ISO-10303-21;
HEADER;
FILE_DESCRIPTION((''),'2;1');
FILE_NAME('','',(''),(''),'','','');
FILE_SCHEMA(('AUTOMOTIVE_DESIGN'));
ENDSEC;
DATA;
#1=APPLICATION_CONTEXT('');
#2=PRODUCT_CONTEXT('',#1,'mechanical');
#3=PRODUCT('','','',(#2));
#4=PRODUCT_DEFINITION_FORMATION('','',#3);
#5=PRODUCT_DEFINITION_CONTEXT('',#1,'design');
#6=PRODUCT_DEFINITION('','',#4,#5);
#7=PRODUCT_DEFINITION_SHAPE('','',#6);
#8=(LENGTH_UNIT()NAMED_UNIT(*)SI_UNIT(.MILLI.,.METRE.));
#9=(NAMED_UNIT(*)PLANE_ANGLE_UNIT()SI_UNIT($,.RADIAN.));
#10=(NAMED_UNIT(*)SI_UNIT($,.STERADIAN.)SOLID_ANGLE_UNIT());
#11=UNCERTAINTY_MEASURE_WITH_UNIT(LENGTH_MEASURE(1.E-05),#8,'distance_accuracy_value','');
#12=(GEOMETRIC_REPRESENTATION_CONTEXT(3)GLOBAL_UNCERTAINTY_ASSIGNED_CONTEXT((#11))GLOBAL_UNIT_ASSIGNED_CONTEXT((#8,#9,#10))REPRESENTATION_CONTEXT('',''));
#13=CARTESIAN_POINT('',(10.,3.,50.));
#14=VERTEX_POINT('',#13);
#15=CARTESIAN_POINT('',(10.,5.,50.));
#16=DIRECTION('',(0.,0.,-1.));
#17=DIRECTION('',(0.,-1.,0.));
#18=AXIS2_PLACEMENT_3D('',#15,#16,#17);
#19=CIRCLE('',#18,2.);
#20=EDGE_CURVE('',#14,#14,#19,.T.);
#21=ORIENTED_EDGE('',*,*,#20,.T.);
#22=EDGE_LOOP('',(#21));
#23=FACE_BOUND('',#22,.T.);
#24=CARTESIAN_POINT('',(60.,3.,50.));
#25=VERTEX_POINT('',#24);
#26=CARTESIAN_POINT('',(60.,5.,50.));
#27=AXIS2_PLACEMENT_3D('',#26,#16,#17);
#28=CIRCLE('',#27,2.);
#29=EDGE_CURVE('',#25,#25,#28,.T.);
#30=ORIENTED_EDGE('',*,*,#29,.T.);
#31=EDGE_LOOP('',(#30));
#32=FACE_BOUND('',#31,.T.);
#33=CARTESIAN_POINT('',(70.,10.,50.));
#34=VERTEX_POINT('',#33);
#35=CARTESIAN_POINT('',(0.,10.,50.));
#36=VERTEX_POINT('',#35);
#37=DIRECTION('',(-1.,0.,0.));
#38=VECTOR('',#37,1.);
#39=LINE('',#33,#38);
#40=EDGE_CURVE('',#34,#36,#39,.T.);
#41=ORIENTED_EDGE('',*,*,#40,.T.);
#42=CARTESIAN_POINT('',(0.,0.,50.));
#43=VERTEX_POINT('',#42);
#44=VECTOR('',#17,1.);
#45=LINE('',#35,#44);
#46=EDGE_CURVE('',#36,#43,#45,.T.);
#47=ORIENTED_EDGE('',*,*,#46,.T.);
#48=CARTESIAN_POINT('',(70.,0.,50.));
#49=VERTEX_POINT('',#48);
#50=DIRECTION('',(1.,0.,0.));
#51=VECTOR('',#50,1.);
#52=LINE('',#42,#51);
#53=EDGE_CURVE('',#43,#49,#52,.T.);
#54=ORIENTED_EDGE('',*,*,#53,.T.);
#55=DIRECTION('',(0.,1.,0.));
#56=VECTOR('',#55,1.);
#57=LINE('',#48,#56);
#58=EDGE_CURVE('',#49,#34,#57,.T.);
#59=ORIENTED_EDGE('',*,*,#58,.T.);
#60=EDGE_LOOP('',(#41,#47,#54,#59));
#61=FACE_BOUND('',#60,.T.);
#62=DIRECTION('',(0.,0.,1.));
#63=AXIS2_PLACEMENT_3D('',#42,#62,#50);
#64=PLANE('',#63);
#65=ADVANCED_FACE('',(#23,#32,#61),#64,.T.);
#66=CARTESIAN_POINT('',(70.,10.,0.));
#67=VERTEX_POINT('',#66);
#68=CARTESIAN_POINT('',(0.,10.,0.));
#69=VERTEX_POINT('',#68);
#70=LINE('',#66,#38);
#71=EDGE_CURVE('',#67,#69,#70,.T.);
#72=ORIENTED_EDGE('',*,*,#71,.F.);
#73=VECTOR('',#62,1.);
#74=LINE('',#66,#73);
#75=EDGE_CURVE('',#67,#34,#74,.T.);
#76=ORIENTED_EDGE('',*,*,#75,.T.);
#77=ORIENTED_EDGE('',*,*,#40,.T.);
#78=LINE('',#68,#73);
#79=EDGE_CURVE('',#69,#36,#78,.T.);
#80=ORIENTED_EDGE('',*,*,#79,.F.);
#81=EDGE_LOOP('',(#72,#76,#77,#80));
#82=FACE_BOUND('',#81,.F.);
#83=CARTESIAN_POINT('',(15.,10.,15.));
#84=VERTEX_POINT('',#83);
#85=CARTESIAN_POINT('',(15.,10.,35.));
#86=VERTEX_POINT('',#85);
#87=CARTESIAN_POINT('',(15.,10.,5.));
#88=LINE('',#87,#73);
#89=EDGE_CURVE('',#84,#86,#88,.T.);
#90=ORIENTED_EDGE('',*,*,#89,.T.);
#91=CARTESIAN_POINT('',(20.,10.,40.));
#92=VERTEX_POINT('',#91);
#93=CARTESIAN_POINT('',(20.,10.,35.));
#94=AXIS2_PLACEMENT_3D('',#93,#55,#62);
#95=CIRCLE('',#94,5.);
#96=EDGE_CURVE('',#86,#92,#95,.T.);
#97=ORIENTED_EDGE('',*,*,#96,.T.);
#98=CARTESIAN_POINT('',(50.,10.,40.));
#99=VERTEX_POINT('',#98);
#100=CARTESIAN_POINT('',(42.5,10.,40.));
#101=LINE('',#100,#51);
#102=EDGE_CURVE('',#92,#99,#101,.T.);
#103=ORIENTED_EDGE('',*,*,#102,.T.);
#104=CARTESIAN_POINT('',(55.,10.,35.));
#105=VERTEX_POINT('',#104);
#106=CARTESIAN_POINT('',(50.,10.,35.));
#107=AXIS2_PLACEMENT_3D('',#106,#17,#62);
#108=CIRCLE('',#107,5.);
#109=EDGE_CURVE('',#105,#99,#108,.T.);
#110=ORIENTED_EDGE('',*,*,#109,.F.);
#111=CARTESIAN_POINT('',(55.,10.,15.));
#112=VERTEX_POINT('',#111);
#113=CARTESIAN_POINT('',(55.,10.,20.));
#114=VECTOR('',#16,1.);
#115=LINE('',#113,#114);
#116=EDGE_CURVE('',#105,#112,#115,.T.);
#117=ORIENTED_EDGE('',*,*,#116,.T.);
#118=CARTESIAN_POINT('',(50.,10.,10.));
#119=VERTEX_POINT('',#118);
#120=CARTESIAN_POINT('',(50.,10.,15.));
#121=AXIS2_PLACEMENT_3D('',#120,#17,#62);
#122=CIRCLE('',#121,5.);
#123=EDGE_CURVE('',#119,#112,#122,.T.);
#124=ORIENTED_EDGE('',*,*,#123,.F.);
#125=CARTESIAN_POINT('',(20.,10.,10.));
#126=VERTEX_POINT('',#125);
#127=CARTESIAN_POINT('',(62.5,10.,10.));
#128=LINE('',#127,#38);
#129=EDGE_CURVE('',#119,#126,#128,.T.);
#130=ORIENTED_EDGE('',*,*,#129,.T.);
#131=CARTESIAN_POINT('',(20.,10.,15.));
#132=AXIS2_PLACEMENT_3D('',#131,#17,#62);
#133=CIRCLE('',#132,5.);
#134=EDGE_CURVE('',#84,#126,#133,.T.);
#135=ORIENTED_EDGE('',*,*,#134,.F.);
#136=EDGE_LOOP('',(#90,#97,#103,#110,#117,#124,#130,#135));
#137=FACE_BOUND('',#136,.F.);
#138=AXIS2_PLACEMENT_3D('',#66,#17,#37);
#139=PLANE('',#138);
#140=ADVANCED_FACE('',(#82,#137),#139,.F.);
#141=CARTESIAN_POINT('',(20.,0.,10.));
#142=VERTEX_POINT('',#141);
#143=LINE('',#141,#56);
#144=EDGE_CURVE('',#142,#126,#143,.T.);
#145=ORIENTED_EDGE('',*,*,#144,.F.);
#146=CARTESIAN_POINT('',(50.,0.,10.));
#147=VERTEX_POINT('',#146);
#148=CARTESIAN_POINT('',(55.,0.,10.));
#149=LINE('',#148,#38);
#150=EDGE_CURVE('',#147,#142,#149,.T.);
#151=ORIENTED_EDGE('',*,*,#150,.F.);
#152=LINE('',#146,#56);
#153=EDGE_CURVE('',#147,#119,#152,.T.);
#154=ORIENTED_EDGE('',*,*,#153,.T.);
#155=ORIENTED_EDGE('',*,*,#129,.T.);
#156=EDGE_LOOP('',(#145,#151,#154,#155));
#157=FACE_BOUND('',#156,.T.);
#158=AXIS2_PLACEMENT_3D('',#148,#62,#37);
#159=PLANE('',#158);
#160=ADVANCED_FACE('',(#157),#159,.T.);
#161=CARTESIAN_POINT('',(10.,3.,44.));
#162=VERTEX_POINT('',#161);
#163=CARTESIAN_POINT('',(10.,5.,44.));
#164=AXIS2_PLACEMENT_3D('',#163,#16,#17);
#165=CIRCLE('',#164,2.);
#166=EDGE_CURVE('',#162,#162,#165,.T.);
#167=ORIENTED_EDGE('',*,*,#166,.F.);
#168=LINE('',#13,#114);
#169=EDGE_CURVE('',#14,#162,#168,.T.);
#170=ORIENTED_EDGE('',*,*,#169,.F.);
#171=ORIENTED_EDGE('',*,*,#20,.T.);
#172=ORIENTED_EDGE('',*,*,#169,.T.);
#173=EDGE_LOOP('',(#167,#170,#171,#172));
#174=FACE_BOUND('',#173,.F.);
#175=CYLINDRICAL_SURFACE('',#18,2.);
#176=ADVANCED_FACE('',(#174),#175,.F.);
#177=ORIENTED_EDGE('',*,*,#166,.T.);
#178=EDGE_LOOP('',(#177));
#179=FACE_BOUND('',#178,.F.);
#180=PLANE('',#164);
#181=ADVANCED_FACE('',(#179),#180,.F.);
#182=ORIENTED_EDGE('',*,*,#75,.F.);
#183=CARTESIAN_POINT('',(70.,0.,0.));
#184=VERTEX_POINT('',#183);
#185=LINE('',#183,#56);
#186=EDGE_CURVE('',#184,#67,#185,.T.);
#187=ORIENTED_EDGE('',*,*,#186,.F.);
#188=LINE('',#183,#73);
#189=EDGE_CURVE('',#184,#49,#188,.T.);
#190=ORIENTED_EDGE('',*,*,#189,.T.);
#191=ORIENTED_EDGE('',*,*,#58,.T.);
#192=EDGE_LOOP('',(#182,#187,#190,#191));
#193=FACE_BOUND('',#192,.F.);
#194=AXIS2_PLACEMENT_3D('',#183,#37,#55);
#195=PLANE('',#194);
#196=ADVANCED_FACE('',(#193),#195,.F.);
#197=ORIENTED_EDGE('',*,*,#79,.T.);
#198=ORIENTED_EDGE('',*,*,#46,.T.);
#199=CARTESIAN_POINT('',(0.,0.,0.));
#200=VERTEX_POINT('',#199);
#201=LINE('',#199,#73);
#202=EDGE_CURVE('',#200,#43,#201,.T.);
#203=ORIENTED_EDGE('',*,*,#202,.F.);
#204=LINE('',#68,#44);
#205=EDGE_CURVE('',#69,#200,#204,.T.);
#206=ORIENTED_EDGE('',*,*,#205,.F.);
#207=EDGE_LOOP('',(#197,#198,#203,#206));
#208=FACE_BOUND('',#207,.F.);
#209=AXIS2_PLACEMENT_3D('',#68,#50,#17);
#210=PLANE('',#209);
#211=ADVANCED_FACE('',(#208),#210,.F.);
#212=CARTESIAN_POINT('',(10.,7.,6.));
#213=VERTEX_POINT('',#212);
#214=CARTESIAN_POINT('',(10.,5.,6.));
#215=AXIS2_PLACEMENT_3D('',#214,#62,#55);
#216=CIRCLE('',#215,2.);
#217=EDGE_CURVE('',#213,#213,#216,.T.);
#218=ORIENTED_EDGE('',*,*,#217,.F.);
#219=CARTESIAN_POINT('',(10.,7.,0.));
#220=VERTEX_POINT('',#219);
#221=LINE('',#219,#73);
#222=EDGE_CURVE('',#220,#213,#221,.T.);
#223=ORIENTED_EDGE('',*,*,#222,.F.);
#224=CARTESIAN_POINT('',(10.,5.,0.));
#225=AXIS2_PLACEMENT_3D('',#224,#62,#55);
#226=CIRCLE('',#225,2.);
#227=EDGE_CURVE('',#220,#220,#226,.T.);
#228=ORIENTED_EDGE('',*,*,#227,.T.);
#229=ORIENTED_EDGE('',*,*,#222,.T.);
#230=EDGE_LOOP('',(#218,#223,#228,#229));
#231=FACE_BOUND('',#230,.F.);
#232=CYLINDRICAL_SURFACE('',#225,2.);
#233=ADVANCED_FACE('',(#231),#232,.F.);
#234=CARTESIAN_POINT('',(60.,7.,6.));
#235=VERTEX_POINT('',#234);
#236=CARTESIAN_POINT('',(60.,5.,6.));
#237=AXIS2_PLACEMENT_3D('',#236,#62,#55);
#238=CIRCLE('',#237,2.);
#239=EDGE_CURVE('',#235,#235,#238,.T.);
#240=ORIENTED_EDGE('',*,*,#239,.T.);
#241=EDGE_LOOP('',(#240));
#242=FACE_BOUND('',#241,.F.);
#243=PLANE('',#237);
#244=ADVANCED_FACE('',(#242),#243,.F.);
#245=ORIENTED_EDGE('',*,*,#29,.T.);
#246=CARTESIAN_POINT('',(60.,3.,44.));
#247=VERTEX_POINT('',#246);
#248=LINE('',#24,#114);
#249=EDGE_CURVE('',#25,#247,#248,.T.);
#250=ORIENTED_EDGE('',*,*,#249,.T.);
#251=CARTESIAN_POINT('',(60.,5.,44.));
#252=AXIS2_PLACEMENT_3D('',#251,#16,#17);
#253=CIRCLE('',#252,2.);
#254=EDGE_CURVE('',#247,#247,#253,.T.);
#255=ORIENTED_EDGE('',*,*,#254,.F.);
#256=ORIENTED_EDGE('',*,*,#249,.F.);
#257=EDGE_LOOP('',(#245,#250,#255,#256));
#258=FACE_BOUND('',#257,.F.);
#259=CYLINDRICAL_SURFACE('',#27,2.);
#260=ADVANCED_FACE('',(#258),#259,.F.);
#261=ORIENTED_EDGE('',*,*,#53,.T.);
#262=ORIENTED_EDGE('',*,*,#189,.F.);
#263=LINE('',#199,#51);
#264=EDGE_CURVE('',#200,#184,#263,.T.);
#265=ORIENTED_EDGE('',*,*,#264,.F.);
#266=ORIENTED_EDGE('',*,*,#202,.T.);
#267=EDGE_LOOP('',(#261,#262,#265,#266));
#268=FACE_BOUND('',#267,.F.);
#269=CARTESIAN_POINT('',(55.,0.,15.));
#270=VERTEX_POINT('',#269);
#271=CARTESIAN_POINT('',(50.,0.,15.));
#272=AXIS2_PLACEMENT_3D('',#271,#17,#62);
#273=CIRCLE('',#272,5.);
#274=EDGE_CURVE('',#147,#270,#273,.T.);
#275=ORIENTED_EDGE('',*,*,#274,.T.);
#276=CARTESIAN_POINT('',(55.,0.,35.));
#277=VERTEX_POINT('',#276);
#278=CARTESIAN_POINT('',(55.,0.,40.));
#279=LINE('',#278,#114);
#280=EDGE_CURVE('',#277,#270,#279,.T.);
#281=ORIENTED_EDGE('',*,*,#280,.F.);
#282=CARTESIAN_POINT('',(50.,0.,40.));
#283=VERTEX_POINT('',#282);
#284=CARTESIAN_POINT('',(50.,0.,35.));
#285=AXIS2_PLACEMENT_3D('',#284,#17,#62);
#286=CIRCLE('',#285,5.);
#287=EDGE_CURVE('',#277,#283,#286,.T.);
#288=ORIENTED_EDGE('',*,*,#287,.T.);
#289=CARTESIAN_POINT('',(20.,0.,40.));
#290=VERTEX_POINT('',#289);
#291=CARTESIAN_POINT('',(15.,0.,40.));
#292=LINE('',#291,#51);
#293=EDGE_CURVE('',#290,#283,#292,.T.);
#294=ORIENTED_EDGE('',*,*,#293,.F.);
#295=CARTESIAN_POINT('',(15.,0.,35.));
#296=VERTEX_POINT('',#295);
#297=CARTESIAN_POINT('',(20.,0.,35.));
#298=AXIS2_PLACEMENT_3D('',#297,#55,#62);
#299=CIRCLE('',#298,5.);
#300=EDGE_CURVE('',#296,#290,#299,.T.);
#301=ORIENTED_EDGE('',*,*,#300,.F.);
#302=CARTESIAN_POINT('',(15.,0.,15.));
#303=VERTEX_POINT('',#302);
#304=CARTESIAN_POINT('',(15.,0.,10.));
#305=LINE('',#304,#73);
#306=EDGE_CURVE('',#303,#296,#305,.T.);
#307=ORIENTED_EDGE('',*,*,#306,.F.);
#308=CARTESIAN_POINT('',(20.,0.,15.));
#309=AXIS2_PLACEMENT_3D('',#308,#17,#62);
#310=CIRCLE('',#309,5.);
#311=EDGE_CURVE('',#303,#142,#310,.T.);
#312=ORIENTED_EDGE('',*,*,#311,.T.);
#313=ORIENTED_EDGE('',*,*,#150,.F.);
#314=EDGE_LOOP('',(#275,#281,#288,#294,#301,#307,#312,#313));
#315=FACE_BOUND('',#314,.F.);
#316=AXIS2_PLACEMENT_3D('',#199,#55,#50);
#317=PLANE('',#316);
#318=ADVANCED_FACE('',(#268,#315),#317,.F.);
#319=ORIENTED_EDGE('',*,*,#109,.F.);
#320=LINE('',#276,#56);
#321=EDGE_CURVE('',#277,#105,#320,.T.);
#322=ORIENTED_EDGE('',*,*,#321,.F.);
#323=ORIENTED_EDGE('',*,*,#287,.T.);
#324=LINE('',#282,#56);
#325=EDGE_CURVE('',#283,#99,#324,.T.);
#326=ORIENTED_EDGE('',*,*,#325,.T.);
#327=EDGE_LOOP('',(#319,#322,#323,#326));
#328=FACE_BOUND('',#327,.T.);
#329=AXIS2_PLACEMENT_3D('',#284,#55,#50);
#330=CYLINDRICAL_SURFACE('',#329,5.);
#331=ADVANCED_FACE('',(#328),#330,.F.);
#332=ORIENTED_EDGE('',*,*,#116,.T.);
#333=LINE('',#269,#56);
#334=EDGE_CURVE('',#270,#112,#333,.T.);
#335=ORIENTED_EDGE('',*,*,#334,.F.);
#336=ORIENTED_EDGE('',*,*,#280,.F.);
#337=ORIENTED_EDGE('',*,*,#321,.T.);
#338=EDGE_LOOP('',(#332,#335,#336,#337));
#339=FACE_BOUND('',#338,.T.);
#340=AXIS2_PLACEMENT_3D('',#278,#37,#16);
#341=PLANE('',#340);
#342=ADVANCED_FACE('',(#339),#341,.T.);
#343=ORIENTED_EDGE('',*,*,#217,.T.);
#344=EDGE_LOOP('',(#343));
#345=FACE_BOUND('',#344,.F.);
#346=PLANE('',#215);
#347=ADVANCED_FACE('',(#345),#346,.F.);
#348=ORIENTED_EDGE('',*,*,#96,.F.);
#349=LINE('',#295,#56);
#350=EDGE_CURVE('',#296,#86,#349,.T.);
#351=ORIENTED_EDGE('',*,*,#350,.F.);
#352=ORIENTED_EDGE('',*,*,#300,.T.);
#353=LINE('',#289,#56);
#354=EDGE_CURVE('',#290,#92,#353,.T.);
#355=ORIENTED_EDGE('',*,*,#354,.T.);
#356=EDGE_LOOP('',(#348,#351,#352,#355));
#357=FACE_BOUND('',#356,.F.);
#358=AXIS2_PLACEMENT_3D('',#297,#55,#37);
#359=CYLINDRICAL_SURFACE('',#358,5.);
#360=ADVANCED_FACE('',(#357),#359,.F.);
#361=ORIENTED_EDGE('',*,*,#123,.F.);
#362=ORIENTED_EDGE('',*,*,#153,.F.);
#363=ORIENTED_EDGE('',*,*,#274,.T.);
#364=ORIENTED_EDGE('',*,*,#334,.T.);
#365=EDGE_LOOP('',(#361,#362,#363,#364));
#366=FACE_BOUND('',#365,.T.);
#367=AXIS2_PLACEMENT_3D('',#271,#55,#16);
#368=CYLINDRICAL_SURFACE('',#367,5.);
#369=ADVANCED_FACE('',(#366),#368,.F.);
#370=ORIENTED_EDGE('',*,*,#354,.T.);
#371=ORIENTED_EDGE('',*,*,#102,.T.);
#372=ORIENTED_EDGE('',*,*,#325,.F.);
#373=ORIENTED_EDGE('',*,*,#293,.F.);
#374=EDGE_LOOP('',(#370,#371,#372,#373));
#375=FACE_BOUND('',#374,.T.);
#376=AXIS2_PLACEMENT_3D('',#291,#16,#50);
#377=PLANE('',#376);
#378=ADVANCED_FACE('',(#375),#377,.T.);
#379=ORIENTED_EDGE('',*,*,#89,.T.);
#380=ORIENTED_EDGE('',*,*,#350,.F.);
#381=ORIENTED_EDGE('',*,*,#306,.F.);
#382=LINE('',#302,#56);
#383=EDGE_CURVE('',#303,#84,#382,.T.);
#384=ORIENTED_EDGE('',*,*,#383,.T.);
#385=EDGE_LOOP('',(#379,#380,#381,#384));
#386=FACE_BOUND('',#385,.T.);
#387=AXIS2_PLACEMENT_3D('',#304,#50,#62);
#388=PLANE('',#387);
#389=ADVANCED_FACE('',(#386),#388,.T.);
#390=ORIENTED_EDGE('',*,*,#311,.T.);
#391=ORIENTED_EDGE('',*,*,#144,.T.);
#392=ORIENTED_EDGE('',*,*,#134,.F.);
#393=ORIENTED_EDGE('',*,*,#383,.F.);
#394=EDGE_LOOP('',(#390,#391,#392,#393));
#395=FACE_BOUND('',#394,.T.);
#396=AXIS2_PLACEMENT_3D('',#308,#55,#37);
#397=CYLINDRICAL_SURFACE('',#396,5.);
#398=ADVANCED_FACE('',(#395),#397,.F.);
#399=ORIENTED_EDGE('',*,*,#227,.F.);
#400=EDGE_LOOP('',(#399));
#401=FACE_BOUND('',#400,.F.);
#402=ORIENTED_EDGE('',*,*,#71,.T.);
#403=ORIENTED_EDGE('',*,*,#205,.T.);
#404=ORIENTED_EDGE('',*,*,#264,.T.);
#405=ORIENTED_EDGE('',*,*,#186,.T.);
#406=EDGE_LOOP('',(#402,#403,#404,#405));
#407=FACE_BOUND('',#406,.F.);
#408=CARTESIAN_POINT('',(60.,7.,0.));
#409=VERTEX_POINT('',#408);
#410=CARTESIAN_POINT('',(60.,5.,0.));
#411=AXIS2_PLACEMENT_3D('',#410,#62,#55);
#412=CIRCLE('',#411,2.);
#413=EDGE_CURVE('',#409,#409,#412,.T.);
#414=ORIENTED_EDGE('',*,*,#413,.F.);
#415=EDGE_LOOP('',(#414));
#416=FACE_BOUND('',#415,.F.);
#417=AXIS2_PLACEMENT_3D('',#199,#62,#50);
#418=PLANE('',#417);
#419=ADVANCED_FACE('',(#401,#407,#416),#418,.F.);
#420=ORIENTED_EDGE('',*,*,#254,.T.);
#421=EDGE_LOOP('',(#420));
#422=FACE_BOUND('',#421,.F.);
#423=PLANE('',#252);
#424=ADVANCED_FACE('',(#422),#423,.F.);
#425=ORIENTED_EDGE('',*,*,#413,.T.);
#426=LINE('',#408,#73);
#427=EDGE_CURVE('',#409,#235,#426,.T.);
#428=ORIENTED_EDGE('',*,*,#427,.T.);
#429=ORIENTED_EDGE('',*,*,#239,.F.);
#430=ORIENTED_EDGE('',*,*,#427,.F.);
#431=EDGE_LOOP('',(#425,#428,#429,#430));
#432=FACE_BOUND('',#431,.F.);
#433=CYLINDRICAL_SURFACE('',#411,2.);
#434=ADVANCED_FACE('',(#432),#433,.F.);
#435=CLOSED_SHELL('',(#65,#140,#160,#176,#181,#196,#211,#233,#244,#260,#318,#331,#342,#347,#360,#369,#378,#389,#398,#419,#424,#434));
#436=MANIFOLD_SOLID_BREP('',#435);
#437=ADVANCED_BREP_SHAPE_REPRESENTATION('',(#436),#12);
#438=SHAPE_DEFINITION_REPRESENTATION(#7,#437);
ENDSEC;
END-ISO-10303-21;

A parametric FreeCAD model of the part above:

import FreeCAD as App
import Part
import Sketcher
Q = App.Units.Quantity


def edges_at(feature, points):
    """Names of the edges that pass closest to the given points."""
    edges = feature.Shape.Edges
    near = lambda p: min(range(len(edges)), key=lambda i: edges[i].distToShape(Part.Vertex(*p))[0])
    return sorted({f"Edge{near(p) + 1}" for p in points})


def add_polygon(sketch, points):
    """Adds a closed chain of lines whose ends are joined by coincident constraints."""
    first, n = sketch.GeometryCount, len(points)
    for a, b in zip(points, points[1:] + points[:1]):
        sketch.addGeometry(Part.LineSegment(App.Vector(*a, 0), App.Vector(*b, 0)), False)
    for i in range(n):
        sketch.addConstraint(Sketcher.Constraint("Coincident", first + i, 2, first + (i + 1) % n, 1))

doc = App.newDocument("Part")
body = doc.addObject("PartDesign::Body", "Body")

# Sketch on XY plane
sketch1 = doc.addObject("Sketcher::SketchObject", "Sketch")
body.addObject(sketch1)
sketch1.AttachmentSupport = (doc.XY_Plane, [""])
sketch1.MapMode = "FlatFace"
add_polygon(sketch1, [(0, 10), (0, 0), (70, 0), (70, 10)])  # lines 0-3
sketch1.addConstraint([
    Sketcher.Constraint("Vertical", 0),
    Sketcher.Constraint("Horizontal", 1),
    Sketcher.Constraint("Vertical", 2),
    Sketcher.Constraint("Horizontal", 3),
    Sketcher.Constraint("Coincident", 0, 2, -1, 1),
    Sketcher.Constraint("DistanceX", 1, 1, 1, 2, Q("70 mm")),
    Sketcher.Constraint("DistanceY", 0, 2, 0, 1, Q("10 mm")),
])
pad1 = doc.addObject("PartDesign::Pad", "Pad")
body.addObject(pad1)
pad1.Profile = sketch1
pad1.Length = 50

# Sketch on XY plane
sketch2 = doc.addObject("Sketcher::SketchObject", "Sketch001")
body.addObject(sketch2)
sketch2.AttachmentSupport = (doc.XY_Plane, [""])
sketch2.MapMode = "FlatFace"
sketch2.AttachmentOffset = App.Placement(App.Vector(0, 0, 50), App.Rotation())
sketch2.addGeometry([
    Part.Circle(App.Vector(10, 5, 0), App.Vector(0, 0, 1), 2),
    Part.Circle(App.Vector(60, 5, 0), App.Vector(0, 0, 1), 2),
], False)
sketch2.addConstraint([
    Sketcher.Constraint("Equal", 0, 1),
    Sketcher.Constraint("Horizontal", 0, 3, 1, 3),
    Sketcher.Constraint("Diameter", 0, Q("4 mm")),
    Sketcher.Constraint("DistanceX", -1, 1, 0, 3, Q("10 mm")),
    Sketcher.Constraint("DistanceY", -1, 1, 0, 3, Q("5 mm")),
    Sketcher.Constraint("DistanceX", -1, 1, 1, 3, Q("60 mm")),
])
doc.recompute()
hole = doc.addObject("PartDesign::Hole", "Hole")
body.addObject(hole)
hole.Profile = sketch2
hole.ThreadType = "None"
hole.Diameter = 4
hole.DepthType = "Dimension"
hole.Depth = 6
hole.DrillPoint = "Flat"

# Sketch on XY plane
sketch3 = doc.addObject("Sketcher::SketchObject", "Sketch002")
body.addObject(sketch3)
sketch3.AttachmentSupport = (doc.XY_Plane, [""])
sketch3.MapMode = "FlatFace"
sketch3.addGeometry([
    Part.Circle(App.Vector(10, 5, 0), App.Vector(0, 0, 1), 2),
    Part.Circle(App.Vector(60, 5, 0), App.Vector(0, 0, 1), 2),
], False)
sketch3.addConstraint([
    Sketcher.Constraint("Equal", 0, 1),
    Sketcher.Constraint("Horizontal", 0, 3, 1, 3),
    Sketcher.Constraint("Diameter", 0, Q("4 mm")),
    Sketcher.Constraint("DistanceX", -1, 1, 0, 3, Q("10 mm")),
    Sketcher.Constraint("DistanceY", -1, 1, 0, 3, Q("5 mm")),
    Sketcher.Constraint("DistanceX", -1, 1, 1, 3, Q("60 mm")),
])
doc.recompute()
hole2 = doc.addObject("PartDesign::Hole", "Hole001")
body.addObject(hole2)
hole2.Profile = sketch3
hole2.ThreadType = "None"
hole2.Diameter = 4
hole2.DepthType = "Dimension"
hole2.Depth = 6
hole2.DrillPoint = "Flat"
hole2.Reversed = True

# Sketch on XZ plane
sketch4 = doc.addObject("Sketcher::SketchObject", "Sketch003")
body.addObject(sketch4)
sketch4.AttachmentSupport = (doc.XZ_Plane, [""])
sketch4.MapMode = "FlatFace"
add_polygon(sketch4, [(55, 40), (15, 40), (15, 10), (55, 10)])  # lines 0-3
sketch4.addConstraint([
    Sketcher.Constraint("Horizontal", 0),
    Sketcher.Constraint("Vertical", 1),
    Sketcher.Constraint("Horizontal", 2),
    Sketcher.Constraint("Vertical", 3),
    Sketcher.Constraint("DistanceX", -1, 1, 0, 2, Q("15 mm")),
    Sketcher.Constraint("DistanceY", -1, 1, 1, 2, Q("10 mm")),
    Sketcher.Constraint("DistanceX", 0, 2, 0, 1, Q("40 mm")),
    Sketcher.Constraint("DistanceY", 1, 2, 1, 1, Q("30 mm")),
])
pocket1 = doc.addObject("PartDesign::Pocket", "Pocket")
body.addObject(pocket1)
pocket1.Profile = sketch4
pocket1.Length = 33
doc.recompute()

fillet = doc.addObject("PartDesign::Fillet", "Fillet")
body.addObject(fillet)
fillet.Base = (pocket1, edges_at(pocket1, [
    (15, 5, 40),
    (55, 5, 40),
    (55, 5, 10),
    (15, 5, 10),
]))
fillet.Radius = 5

doc.recompute()
